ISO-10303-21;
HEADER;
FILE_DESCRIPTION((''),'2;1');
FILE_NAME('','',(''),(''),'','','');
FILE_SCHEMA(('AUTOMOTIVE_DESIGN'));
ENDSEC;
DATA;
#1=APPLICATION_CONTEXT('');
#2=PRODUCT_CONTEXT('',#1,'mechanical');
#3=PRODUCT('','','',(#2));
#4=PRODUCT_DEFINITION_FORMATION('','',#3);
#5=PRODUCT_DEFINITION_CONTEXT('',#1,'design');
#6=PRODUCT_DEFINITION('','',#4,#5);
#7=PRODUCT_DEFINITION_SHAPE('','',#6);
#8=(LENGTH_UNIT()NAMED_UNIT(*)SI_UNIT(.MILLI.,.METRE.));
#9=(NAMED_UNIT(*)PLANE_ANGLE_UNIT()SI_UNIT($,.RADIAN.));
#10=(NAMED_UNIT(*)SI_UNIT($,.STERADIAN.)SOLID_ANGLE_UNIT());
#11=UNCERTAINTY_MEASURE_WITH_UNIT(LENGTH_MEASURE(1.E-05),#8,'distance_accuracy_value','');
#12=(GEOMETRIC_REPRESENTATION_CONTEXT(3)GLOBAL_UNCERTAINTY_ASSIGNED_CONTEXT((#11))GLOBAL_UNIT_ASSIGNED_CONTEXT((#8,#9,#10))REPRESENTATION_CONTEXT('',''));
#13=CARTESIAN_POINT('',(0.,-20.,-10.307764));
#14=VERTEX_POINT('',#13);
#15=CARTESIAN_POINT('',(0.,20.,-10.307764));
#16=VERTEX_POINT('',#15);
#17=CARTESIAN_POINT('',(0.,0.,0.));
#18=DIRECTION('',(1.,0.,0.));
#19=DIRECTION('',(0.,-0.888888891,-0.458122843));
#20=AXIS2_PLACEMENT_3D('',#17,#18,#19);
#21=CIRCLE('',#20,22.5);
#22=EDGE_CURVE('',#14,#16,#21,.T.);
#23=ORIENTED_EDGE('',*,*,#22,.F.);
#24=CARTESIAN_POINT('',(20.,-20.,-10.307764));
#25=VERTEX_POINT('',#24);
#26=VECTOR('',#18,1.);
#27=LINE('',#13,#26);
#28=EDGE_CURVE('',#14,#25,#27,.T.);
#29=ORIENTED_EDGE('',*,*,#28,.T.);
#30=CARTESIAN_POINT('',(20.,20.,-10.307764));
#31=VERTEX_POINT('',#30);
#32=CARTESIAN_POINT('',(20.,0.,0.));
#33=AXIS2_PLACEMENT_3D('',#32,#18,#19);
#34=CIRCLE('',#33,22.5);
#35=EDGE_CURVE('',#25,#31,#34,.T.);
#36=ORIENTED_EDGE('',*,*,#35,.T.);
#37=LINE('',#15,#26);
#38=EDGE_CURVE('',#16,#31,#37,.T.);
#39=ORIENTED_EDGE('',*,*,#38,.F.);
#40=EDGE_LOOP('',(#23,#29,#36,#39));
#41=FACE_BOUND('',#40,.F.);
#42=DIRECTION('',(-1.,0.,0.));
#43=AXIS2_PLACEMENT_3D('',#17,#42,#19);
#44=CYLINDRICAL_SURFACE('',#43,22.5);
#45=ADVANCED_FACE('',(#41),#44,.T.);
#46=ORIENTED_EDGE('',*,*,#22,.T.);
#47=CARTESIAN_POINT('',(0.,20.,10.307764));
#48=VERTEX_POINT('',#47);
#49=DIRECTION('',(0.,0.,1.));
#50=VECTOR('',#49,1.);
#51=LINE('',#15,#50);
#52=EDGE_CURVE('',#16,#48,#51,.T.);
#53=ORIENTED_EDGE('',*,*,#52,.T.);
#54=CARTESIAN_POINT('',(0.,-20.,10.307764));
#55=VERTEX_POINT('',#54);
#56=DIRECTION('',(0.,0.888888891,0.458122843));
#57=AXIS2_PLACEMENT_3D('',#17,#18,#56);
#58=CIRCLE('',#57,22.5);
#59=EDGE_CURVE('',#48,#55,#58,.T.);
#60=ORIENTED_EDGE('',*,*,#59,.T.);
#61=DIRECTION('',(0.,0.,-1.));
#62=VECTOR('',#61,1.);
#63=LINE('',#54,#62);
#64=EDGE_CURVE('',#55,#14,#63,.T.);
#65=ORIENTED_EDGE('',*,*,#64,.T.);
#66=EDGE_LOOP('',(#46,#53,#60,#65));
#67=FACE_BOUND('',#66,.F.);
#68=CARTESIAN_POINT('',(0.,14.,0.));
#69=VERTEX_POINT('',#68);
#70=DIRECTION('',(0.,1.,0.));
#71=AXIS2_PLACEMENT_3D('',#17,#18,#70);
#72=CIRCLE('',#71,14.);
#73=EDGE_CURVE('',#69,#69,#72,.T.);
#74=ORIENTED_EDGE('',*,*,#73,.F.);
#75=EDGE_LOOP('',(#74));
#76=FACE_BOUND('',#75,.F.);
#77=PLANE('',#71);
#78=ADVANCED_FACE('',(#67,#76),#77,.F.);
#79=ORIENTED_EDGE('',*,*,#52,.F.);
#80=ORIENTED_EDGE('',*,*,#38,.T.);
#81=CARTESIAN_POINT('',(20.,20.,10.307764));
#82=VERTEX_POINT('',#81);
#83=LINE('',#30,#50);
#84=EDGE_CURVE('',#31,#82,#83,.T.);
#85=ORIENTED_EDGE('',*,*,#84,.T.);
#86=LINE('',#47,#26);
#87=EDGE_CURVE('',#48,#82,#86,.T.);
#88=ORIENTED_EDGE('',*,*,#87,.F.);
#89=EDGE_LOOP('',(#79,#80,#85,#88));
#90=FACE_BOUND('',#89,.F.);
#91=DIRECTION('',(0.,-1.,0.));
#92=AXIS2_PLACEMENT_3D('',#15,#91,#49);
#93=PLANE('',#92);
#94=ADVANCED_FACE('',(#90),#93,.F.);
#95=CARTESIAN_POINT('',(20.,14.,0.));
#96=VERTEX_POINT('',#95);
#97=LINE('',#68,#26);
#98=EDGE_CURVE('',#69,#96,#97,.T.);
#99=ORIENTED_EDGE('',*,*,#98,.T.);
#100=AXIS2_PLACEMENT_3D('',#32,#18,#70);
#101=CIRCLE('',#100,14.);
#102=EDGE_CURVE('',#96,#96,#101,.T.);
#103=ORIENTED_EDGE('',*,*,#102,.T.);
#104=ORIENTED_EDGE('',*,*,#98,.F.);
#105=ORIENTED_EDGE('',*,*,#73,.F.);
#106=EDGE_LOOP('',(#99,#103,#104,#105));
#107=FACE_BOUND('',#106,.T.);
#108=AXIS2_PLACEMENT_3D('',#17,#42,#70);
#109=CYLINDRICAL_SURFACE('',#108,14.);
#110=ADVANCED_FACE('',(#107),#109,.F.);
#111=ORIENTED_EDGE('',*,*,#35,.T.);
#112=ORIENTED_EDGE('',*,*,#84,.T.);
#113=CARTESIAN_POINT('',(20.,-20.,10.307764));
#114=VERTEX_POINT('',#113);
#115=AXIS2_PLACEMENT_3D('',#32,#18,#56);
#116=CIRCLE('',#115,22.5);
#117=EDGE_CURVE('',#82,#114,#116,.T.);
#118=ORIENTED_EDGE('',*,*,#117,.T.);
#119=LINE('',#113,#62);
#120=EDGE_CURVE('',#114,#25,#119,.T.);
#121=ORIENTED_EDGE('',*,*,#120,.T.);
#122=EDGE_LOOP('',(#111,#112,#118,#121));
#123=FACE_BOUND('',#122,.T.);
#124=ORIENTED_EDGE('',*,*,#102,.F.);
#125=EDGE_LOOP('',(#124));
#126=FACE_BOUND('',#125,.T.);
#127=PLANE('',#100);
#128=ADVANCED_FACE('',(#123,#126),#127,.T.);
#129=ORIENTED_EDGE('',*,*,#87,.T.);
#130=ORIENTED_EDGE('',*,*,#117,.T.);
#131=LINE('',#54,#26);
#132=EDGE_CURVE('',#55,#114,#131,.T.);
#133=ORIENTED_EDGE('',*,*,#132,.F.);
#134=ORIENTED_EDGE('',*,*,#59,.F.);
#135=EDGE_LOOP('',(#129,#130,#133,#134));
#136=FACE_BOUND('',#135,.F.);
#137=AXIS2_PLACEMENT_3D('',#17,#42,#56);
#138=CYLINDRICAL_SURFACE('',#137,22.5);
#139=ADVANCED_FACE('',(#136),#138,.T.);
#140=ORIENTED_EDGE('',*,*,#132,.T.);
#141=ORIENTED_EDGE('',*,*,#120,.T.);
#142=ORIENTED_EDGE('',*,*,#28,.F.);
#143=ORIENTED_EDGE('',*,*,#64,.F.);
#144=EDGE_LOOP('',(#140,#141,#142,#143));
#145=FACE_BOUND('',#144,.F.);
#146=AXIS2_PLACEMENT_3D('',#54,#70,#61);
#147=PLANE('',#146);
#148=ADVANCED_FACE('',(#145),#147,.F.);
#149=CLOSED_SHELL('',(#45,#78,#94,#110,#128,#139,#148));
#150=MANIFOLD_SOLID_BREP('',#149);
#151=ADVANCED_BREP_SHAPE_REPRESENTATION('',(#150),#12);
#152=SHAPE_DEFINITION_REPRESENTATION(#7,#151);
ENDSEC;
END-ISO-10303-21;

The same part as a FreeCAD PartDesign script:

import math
import FreeCAD as App
import Part
import Sketcher

V = App.Vector

doc = App.newDocument("Part")
body = doc.addObject("PartDesign::Body", "Body")

sketch1 = body.newObject("Sketcher::SketchObject", "Sketch")
sketch1.AttachmentSupport = (doc.getObject("YZ_Plane"), [""])
sketch1.MapMode = "FlatFace"
sketch1.addGeometry([
    Part.LineSegment(V(-20, 10, 0), V(-20, -10, 0)),
    Part.ArcOfCircle(Part.Circle(V(0, 0, 0), V(0, 0, 1), 22), math.radians(-153), math.radians(-27)),
    Part.LineSegment(V(20, -10, 0), V(20, 10, 0)),
    Part.ArcOfCircle(Part.Circle(V(0, 0, 0), V(0, 0, 1), 22), math.radians(27), math.radians(153)),
    Part.Circle(V(0, 0, 0), V(0, 0, 1), 14),
], False)
sketch1.addConstraint([
    Sketcher.Constraint("Coincident", 0, 2, 1, 1),
    Sketcher.Constraint("Coincident", 1, 2, 2, 1),
    Sketcher.Constraint("Coincident", 2, 2, 3, 1),
    Sketcher.Constraint("Coincident", 3, 2, 0, 1),
    Sketcher.Constraint("Vertical", 0),
    Sketcher.Constraint("Vertical", 2),
    Sketcher.Constraint("Coincident", 1, 3, -1, 1),
    Sketcher.Constraint("Coincident", 3, 3, -1, 1),
    Sketcher.Constraint("Coincident", 4, 3, -1, 1),
    Sketcher.Constraint("Equal", 1, 3),
    Sketcher.Constraint("Horizontal", 0, 2, 1, 2),
    Sketcher.Constraint("Diameter", 4, 28.0),
    Sketcher.Constraint("Radius", 1, 22.5),
    Sketcher.Constraint("DistanceX", 0, 2, -1, 1, 20.0),
])
pad1 = body.newObject("PartDesign::Pad", "Pad")
pad1.Profile = sketch1
pad1.Length = 20

doc.recompute()
